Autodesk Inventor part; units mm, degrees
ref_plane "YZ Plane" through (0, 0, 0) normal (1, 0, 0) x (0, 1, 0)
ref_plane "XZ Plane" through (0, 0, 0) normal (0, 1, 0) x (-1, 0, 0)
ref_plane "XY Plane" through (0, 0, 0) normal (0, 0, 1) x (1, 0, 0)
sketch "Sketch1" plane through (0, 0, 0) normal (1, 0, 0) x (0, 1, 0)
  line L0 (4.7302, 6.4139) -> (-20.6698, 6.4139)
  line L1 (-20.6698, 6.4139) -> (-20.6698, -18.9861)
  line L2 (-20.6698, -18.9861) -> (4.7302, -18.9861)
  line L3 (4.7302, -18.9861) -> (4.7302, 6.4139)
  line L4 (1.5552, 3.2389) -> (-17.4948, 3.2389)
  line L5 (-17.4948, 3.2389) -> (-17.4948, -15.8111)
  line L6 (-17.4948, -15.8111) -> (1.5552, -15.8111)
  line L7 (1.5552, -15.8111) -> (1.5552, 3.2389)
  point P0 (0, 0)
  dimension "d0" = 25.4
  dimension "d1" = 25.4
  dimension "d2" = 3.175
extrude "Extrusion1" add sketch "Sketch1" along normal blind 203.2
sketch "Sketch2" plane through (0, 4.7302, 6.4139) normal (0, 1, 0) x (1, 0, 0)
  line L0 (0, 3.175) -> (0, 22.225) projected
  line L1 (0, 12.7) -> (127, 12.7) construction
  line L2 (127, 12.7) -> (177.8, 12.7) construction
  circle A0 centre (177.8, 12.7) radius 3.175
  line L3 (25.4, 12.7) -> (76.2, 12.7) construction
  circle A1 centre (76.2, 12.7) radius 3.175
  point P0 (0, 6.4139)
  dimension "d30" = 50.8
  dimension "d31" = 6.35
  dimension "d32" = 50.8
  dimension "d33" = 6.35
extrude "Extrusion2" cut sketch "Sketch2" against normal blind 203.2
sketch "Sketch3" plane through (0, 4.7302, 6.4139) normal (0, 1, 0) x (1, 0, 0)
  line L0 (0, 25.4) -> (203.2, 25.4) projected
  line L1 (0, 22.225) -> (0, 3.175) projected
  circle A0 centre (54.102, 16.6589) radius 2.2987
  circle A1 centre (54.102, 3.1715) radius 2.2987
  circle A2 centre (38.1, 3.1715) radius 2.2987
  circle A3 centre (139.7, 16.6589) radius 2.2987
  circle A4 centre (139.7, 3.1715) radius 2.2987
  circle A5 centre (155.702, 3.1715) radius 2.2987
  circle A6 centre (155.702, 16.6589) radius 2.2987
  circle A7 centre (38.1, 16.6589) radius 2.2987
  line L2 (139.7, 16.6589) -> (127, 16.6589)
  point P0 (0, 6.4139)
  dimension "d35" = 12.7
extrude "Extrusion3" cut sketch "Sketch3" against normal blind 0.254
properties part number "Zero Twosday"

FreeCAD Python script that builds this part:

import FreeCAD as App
import Part
import Sketcher
from FreeCAD import Vector
Q = App.Units.Quantity


def add_polygon(sketch, points):
    """Adds a closed chain of lines whose ends are joined by coincident constraints."""
    first, n = sketch.GeometryCount, len(points)
    for a, b in zip(points, points[1:] + points[:1]):
        sketch.addGeometry(Part.LineSegment(App.Vector(*a, 0), App.Vector(*b, 0)), False)
    for i in range(n):
        sketch.addConstraint(Sketcher.Constraint("Coincident", first + i, 2, first + (i + 1) % n, 1))

doc = App.newDocument("Part")
params = doc.addObject("Spreadsheet::Sheet", "Params")
for row, (alias, value) in enumerate([
    ("sketch1_width", "1 in"),
    ("pad1_length", "8 in"),
    ("sketch2_diameter", "0.25 in"),
    ("pocket1_length", "8 in"),
    ("sketch3_diameter", "0.181 in"),
    ("pocket2_length", "0.01 in"),
], start=1):
    params.set(f"A{row}", alias)
    params.set(f"B{row}", "=" + value)
    params.setAlias(f"B{row}", alias)

body = doc.addObject("PartDesign::Body", "Body")

# Sketch on YZ plane
sketch1 = body.newObject("Sketcher::SketchObject", "Sketch")
sketch1.AttachmentSupport = (doc.getObject("YZ_Plane"), [""])
sketch1.MapMode = "FlatFace"
add_polygon(sketch1, [(5, -19), (5, 6), (-21, 6), (-21, -19)])  # lines 0-3
add_polygon(sketch1, [(-17, 3), (2, 3), (2, -16), (-17, -16)])  # lines 4-7
sketch1.addConstraint([
    Sketcher.Constraint("Vertical", 0),
    Sketcher.Constraint("Horizontal", 1),
    Sketcher.Constraint("Vertical", 2),
    Sketcher.Constraint("Horizontal", 3),
    Sketcher.Constraint("Horizontal", 4),
    Sketcher.Constraint("Vertical", 5),
    Sketcher.Constraint("Horizontal", 6),
    Sketcher.Constraint("Vertical", 7),
    Sketcher.Constraint("Equal", 3, 0),
    Sketcher.Constraint("Equal", 6, 5),
    Sketcher.Constraint("DistanceX", 1, 2, 1, 1, Q("1 in")),
    Sketcher.Constraint("DistanceX", 4, 2, 0, 2, Q("0.125 in")),
    Sketcher.Constraint("DistanceY", 4, 2, 0, 2, Q("0.125 in")),
    Sketcher.Constraint("DistanceY", 3, 2, 5, 2, Q("0.125 in")),
    Sketcher.Constraint("DistanceX", -1, 1, 0, 2, 4.7302),
    Sketcher.Constraint("DistanceY", -1, 1, 0, 2, 6.414),
])
sketch1.setExpression("Constraints[18]", "Params.sketch1_width")
pad1 = body.newObject("PartDesign::Pad", "Pad")
pad1.Profile = sketch1
pad1.setExpression("Length", "Params.pad1_length")

# Sketch on XZ plane
sketch2 = body.newObject("Sketcher::SketchObject", "Sketch001")
sketch2.AttachmentSupport = (doc.getObject("XZ_Plane"), [""])
sketch2.MapMode = "FlatFace"
sketch2.AttachmentOffset = App.Placement(Vector(0, 0, -4.7302), App.Rotation())
sketch2.addGeometry([
    Part.Circle(Vector(177.8, -6.3, 0), Vector(0, 0, 1), 3.2),
    Part.Circle(Vector(76.2, -6.3, 0), Vector(0, 0, 1), 3.2),
], False)
sketch2.addConstraint([
    Sketcher.Constraint("Equal", 0, 1),
    Sketcher.Constraint("Horizontal", 0, 3, 1, 3),
    Sketcher.Constraint("Diameter", 0, Q("0.25 in")),
    Sketcher.Constraint("DistanceX", -1, 1, 0, 3, Q("7 in")),
    Sketcher.Constraint("DistanceX", -1, 1, 1, 3, Q("3 in")),
    Sketcher.Constraint("DistanceY", 0, 3, -1, 1, 6.286),
])
sketch2.setExpression("Constraints[2]", "Params.sketch2_diameter")
pocket1 = body.newObject("PartDesign::Pocket", "Pocket")
pocket1.Profile = sketch2
pocket1.setExpression("Length", "Params.pocket1_length")
pocket1.Reversed = True

# Sketch on XZ plane
sketch3 = body.newObject("Sketcher::SketchObject", "Sketch002")
sketch3.AttachmentSupport = (doc.getObject("XZ_Plane"), [""])
sketch3.MapMode = "FlatFace"
sketch3.AttachmentOffset = App.Placement(Vector(0, 0, -4.7302), App.Rotation())
sketch3.addGeometry([
    Part.Circle(Vector(54.1, -10.2, 0), Vector(0, 0, 1), 2.3),  # 0
    Part.Circle(Vector(54.1, 3.2, 0), Vector(0, 0, 1), 2.3),  # 1
    Part.Circle(Vector(38.1, 3.2, 0), Vector(0, 0, 1), 2.3),  # 2
    Part.Circle(Vector(139.7, -10.2, 0), Vector(0, 0, 1), 2.3),  # 3
    Part.Circle(Vector(139.7, 3.2, 0), Vector(0, 0, 1), 2.3),  # 4
    Part.Circle(Vector(155.7, 3.2, 0), Vector(0, 0, 1), 2.3),  # 5
    Part.Circle(Vector(155.7, -10.2, 0), Vector(0, 0, 1), 2.3),  # 6
    Part.Circle(Vector(38.1, -10.2, 0), Vector(0, 0, 1), 2.3),  # 7
], False)
sketch3.addConstraint([
    Sketcher.Constraint("Equal", 0, 1),
    Sketcher.Constraint("Equal", 1, 2),
    Sketcher.Constraint("Equal", 2, 3),
    Sketcher.Constraint("Equal", 3, 4),
    Sketcher.Constraint("Equal", 4, 5),
    Sketcher.Constraint("Equal", 5, 6),
    Sketcher.Constraint("Equal", 6, 7),
    Sketcher.Constraint("Horizontal", 1, 3, 2, 3),
    Sketcher.Constraint("Horizontal", 0, 3, 3, 3),
    Sketcher.Constraint("Horizontal", 2, 3, 4, 3),
    Sketcher.Constraint("Horizontal", 4, 3, 5, 3),
    Sketcher.Constraint("Horizontal", 3, 3, 6, 3),
    Sketcher.Constraint("Horizontal", 6, 3, 7, 3),
    Sketcher.Constraint("Vertical", 0, 3, 1, 3),
    Sketcher.Constraint("Vertical", 3, 3, 4, 3),
    Sketcher.Constraint("Vertical", 5, 3, 6, 3),
    Sketcher.Constraint("Vertical", 2, 3, 7, 3),
    Sketcher.Constraint("Diameter", 0, Q("0.181 in")),
    Sketcher.Constraint("DistanceX", 2, 3, 3, 3, Q("4 in")),
    Sketcher.Constraint("DistanceX", 1, 3, 5, 3, Q("4 in")),
    Sketcher.Constraint("DistanceX", -1, 1, 2, 3, Q("1.5 in")),
    Sketcher.Constraint("DistanceX", -1, 1, 0, 3, Q("2.13 in")),
    Sketcher.Constraint("DistanceY", 0, 3, 1, 3, Q("0.531 in")),
    Sketcher.Constraint("DistanceY", 0, 3, -1, 1, 10.245),
])
sketch3.setExpression("Constraints[17]", "Params.sketch3_diameter")
pocket2 = body.newObject("PartDesign::Pocket", "Pocket001")
pocket2.Profile = sketch3
pocket2.setExpression("Length", "Params.pocket2_length")
pocket2.Reversed = True

doc.recompute()
